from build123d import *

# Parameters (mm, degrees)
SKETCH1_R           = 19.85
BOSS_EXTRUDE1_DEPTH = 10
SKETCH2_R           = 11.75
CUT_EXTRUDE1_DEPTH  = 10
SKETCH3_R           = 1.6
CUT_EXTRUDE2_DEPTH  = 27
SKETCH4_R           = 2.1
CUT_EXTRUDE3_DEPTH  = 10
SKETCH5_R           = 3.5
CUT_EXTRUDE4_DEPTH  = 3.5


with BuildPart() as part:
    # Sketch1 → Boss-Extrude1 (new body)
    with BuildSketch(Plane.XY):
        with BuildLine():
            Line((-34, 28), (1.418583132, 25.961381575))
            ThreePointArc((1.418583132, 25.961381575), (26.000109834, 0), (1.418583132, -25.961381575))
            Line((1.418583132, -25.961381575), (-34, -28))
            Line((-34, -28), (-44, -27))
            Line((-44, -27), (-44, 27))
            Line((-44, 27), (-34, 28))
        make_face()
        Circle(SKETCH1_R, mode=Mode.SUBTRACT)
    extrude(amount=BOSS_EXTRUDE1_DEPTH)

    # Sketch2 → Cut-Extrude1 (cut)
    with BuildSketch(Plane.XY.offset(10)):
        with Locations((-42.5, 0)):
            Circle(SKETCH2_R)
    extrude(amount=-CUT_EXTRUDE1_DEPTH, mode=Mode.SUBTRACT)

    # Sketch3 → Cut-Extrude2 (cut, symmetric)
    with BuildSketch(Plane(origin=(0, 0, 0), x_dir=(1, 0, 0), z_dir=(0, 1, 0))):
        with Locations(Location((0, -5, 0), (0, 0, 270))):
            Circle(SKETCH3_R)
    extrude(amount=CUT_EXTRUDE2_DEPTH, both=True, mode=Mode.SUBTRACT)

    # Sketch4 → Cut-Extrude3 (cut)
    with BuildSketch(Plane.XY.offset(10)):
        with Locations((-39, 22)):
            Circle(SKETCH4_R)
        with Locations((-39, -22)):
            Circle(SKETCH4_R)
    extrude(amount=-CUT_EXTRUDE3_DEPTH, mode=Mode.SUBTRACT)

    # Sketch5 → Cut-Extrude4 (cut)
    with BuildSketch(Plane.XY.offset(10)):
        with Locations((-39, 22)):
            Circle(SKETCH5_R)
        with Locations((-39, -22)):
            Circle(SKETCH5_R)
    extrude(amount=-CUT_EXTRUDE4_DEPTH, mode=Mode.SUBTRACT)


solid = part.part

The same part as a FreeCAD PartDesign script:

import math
import FreeCAD as App
import Part
import Sketcher

doc = App.newDocument("Part")
body = doc.addObject("PartDesign::Body", "Body")

sketch1 = body.newObject("Sketcher::SketchObject", "Sketch")
sketch1.AttachmentSupport = (doc.getObject("XY_Plane"), [""])
sketch1.MapMode = "FlatFace"
sketch1.addGeometry(Part.LineSegment(App.Vector(1, 26, 0), App.Vector(-34, 28, 0)), False)
sketch1.addGeometry(Part.LineSegment(App.Vector(-34, 28, 0), App.Vector(-44, 27, 0)), False)
sketch1.addGeometry(Part.LineSegment(App.Vector(-44, 27, 0), App.Vector(-44, -27, 0)), False)
sketch1.addGeometry(Part.LineSegment(App.Vector(-44, -27, 0), App.Vector(-34, -28, 0)), False)
sketch1.addGeometry(Part.LineSegment(App.Vector(-34, -28, 0), App.Vector(1, -26, 0)), False)
sketch1.addGeometry(Part.ArcOfCircle(Part.Circle(App.Vector(0, 0, 0), App.Vector(0, 0, 1), 26), math.radians(-87), math.radians(87)), False)
sketch1.addGeometry(Part.Circle(App.Vector(0, 0, 0), App.Vector(0, 0, 1), 20), False)
sketch1.addConstraint(Sketcher.Constraint("Coincident", 0, 2, 1, 1))
sketch1.addConstraint(Sketcher.Constraint("Coincident", 1, 2, 2, 1))
sketch1.addConstraint(Sketcher.Constraint("Coincident", 2, 2, 3, 1))
sketch1.addConstraint(Sketcher.Constraint("Coincident", 3, 2, 4, 1))
sketch1.addConstraint(Sketcher.Constraint("Coincident", 4, 2, 5, 1))
sketch1.addConstraint(Sketcher.Constraint("Coincident", 5, 2, 0, 1))
sketch1.addConstraint(Sketcher.Constraint("Vertical", 2))
sketch1.addConstraint(Sketcher.Constraint("Coincident", 5, 3, -1, 1))
sketch1.addConstraint(Sketcher.Constraint("Coincident", 6, 3, -1, 1))
sketch1.addConstraint(Sketcher.Constraint("Symmetric", 0, 2, 3, 2, -1))
sketch1.addConstraint(Sketcher.Constraint("Vertical", 4, 2, 5, 2))
sketch1.addConstraint(Sketcher.Constraint("Equal", 1, 3))
sketch1.addConstraint(Sketcher.Constraint("Diameter", 6, 39.7))
sketch1.addConstraint(Sketcher.Constraint("DistanceY", 2, 2, 2, 1, 54.0))
sketch1.addConstraint(Sketcher.Constraint("DistanceX", 0, 2, -1, 1, 34.0))
sketch1.addConstraint(Sketcher.Constraint("DistanceY", -1, 1, 0, 2, 28.0))
sketch1.addConstraint(Sketcher.Constraint("DistanceX", 1, 2, -1, 1, 44.0))
sketch1.addConstraint(Sketcher.Constraint("Radius", 5, 26.00011))
sketch1.addConstraint(Sketcher.Constraint("DistanceY", 4, 2, -1, 1, 25.961382))
pad1 = body.newObject("PartDesign::Pad", "Pad")
pad1.Profile = sketch1
pad1.Length = 10

sketch2 = body.newObject("Sketcher::SketchObject", "Sketch001")
sketch2.AttachmentSupport = (doc.getObject("XY_Plane"), [""])
sketch2.MapMode = "FlatFace"
sketch2.AttachmentOffset = App.Placement(App.Vector(0, 0, 10), App.Rotation())
sketch2.addGeometry(Part.Circle(App.Vector(-42, 0, 0), App.Vector(0, 0, 1), 12), False)
sketch2.addConstraint(Sketcher.Constraint("PointOnObject", 0, 3, -1))
sketch2.addConstraint(Sketcher.Constraint("Diameter", 0, 23.5))
sketch2.addConstraint(Sketcher.Constraint("DistanceX", 0, 3, -1, 1, 42.5))
pocket1 = body.newObject("PartDesign::Pocket", "Pocket")
pocket1.Profile = sketch2
pocket1.Length = 10

sketch3 = body.newObject("Sketcher::SketchObject", "Sketch002")
sketch3.AttachmentSupport = (doc.getObject("XZ_Plane"), [""])
sketch3.MapMode = "FlatFace"
sketch3.addGeometry(Part.Circle(App.Vector(0, 5, 0), App.Vector(0, 0, 1), 1.6), False)
sketch3.addConstraint(Sketcher.Constraint("PointOnObject", 0, 3, -2))
sketch3.addConstraint(Sketcher.Constraint("Diameter", 0, 3.2))
sketch3.addConstraint(Sketcher.Constraint("DistanceY", -1, 1, 0, 3, 5.0))
pocket2 = body.newObject("PartDesign::Pocket", "Pocket001")
pocket2.Profile = sketch3
pocket2.Length = 54
pocket2.Midplane = True

sketch4 = body.newObject("Sketcher::SketchObject", "Sketch003")
sketch4.AttachmentSupport = (doc.getObject("XY_Plane"), [""])
sketch4.MapMode = "FlatFace"
sketch4.AttachmentOffset = App.Placement(App.Vector(0, 0, 10), App.Rotation())
sketch4.addGeometry(Part.Circle(App.Vector(-39, 22, 0), App.Vector(0, 0, 1), 2.1), False)
sketch4.addGeometry(Part.Circle(App.Vector(-39, -22, 0), App.Vector(0, 0, 1), 2.1), False)
sketch4.addConstraint(Sketcher.Constraint("Equal", 0, 1))
sketch4.addConstraint(Sketcher.Constraint("Symmetric", 0, 3, 1, 3, -1))
sketch4.addConstraint(Sketcher.Constraint("Diameter", 0, 4.2))
sketch4.addConstraint(Sketcher.Constraint("DistanceX", 0, 3, -1, 1, 39.0))
sketch4.addConstraint(Sketcher.Constraint("DistanceY", -1, 1, 0, 3, 22.0))
pocket3 = body.newObject("PartDesign::Pocket", "Pocket002")
pocket3.Profile = sketch4
pocket3.Length = 10

sketch5 = body.newObject("Sketcher::SketchObject", "Sketch004")
sketch5.AttachmentSupport = (doc.getObject("XY_Plane"), [""])
sketch5.MapMode = "FlatFace"
sketch5.AttachmentOffset = App.Placement(App.Vector(0, 0, 10), App.Rotation())
sketch5.addGeometry(Part.Circle(App.Vector(-39, 22, 0), App.Vector(0, 0, 1), 3.5), False)
sketch5.addGeometry(Part.Circle(App.Vector(-39, -22, 0), App.Vector(0, 0, 1), 3.5), False)
sketch5.addConstraint(Sketcher.Constraint("Equal", 0, 1))
sketch5.addConstraint(Sketcher.Constraint("Symmetric", 0, 3, 1, 3, -1))
sketch5.addConstraint(Sketcher.Constraint("Diameter", 0, 7.0))
sketch5.addConstraint(Sketcher.Constraint("DistanceX", 0, 3, -1, 1, 39.0))
sketch5.addConstraint(Sketcher.Constraint("DistanceY", -1, 1, 0, 3, 22.0))
pocket4 = body.newObject("PartDesign::Pocket", "Pocket003")
pocket4.Profile = sketch5
pocket4.Length = 3.5

doc.recompute()
